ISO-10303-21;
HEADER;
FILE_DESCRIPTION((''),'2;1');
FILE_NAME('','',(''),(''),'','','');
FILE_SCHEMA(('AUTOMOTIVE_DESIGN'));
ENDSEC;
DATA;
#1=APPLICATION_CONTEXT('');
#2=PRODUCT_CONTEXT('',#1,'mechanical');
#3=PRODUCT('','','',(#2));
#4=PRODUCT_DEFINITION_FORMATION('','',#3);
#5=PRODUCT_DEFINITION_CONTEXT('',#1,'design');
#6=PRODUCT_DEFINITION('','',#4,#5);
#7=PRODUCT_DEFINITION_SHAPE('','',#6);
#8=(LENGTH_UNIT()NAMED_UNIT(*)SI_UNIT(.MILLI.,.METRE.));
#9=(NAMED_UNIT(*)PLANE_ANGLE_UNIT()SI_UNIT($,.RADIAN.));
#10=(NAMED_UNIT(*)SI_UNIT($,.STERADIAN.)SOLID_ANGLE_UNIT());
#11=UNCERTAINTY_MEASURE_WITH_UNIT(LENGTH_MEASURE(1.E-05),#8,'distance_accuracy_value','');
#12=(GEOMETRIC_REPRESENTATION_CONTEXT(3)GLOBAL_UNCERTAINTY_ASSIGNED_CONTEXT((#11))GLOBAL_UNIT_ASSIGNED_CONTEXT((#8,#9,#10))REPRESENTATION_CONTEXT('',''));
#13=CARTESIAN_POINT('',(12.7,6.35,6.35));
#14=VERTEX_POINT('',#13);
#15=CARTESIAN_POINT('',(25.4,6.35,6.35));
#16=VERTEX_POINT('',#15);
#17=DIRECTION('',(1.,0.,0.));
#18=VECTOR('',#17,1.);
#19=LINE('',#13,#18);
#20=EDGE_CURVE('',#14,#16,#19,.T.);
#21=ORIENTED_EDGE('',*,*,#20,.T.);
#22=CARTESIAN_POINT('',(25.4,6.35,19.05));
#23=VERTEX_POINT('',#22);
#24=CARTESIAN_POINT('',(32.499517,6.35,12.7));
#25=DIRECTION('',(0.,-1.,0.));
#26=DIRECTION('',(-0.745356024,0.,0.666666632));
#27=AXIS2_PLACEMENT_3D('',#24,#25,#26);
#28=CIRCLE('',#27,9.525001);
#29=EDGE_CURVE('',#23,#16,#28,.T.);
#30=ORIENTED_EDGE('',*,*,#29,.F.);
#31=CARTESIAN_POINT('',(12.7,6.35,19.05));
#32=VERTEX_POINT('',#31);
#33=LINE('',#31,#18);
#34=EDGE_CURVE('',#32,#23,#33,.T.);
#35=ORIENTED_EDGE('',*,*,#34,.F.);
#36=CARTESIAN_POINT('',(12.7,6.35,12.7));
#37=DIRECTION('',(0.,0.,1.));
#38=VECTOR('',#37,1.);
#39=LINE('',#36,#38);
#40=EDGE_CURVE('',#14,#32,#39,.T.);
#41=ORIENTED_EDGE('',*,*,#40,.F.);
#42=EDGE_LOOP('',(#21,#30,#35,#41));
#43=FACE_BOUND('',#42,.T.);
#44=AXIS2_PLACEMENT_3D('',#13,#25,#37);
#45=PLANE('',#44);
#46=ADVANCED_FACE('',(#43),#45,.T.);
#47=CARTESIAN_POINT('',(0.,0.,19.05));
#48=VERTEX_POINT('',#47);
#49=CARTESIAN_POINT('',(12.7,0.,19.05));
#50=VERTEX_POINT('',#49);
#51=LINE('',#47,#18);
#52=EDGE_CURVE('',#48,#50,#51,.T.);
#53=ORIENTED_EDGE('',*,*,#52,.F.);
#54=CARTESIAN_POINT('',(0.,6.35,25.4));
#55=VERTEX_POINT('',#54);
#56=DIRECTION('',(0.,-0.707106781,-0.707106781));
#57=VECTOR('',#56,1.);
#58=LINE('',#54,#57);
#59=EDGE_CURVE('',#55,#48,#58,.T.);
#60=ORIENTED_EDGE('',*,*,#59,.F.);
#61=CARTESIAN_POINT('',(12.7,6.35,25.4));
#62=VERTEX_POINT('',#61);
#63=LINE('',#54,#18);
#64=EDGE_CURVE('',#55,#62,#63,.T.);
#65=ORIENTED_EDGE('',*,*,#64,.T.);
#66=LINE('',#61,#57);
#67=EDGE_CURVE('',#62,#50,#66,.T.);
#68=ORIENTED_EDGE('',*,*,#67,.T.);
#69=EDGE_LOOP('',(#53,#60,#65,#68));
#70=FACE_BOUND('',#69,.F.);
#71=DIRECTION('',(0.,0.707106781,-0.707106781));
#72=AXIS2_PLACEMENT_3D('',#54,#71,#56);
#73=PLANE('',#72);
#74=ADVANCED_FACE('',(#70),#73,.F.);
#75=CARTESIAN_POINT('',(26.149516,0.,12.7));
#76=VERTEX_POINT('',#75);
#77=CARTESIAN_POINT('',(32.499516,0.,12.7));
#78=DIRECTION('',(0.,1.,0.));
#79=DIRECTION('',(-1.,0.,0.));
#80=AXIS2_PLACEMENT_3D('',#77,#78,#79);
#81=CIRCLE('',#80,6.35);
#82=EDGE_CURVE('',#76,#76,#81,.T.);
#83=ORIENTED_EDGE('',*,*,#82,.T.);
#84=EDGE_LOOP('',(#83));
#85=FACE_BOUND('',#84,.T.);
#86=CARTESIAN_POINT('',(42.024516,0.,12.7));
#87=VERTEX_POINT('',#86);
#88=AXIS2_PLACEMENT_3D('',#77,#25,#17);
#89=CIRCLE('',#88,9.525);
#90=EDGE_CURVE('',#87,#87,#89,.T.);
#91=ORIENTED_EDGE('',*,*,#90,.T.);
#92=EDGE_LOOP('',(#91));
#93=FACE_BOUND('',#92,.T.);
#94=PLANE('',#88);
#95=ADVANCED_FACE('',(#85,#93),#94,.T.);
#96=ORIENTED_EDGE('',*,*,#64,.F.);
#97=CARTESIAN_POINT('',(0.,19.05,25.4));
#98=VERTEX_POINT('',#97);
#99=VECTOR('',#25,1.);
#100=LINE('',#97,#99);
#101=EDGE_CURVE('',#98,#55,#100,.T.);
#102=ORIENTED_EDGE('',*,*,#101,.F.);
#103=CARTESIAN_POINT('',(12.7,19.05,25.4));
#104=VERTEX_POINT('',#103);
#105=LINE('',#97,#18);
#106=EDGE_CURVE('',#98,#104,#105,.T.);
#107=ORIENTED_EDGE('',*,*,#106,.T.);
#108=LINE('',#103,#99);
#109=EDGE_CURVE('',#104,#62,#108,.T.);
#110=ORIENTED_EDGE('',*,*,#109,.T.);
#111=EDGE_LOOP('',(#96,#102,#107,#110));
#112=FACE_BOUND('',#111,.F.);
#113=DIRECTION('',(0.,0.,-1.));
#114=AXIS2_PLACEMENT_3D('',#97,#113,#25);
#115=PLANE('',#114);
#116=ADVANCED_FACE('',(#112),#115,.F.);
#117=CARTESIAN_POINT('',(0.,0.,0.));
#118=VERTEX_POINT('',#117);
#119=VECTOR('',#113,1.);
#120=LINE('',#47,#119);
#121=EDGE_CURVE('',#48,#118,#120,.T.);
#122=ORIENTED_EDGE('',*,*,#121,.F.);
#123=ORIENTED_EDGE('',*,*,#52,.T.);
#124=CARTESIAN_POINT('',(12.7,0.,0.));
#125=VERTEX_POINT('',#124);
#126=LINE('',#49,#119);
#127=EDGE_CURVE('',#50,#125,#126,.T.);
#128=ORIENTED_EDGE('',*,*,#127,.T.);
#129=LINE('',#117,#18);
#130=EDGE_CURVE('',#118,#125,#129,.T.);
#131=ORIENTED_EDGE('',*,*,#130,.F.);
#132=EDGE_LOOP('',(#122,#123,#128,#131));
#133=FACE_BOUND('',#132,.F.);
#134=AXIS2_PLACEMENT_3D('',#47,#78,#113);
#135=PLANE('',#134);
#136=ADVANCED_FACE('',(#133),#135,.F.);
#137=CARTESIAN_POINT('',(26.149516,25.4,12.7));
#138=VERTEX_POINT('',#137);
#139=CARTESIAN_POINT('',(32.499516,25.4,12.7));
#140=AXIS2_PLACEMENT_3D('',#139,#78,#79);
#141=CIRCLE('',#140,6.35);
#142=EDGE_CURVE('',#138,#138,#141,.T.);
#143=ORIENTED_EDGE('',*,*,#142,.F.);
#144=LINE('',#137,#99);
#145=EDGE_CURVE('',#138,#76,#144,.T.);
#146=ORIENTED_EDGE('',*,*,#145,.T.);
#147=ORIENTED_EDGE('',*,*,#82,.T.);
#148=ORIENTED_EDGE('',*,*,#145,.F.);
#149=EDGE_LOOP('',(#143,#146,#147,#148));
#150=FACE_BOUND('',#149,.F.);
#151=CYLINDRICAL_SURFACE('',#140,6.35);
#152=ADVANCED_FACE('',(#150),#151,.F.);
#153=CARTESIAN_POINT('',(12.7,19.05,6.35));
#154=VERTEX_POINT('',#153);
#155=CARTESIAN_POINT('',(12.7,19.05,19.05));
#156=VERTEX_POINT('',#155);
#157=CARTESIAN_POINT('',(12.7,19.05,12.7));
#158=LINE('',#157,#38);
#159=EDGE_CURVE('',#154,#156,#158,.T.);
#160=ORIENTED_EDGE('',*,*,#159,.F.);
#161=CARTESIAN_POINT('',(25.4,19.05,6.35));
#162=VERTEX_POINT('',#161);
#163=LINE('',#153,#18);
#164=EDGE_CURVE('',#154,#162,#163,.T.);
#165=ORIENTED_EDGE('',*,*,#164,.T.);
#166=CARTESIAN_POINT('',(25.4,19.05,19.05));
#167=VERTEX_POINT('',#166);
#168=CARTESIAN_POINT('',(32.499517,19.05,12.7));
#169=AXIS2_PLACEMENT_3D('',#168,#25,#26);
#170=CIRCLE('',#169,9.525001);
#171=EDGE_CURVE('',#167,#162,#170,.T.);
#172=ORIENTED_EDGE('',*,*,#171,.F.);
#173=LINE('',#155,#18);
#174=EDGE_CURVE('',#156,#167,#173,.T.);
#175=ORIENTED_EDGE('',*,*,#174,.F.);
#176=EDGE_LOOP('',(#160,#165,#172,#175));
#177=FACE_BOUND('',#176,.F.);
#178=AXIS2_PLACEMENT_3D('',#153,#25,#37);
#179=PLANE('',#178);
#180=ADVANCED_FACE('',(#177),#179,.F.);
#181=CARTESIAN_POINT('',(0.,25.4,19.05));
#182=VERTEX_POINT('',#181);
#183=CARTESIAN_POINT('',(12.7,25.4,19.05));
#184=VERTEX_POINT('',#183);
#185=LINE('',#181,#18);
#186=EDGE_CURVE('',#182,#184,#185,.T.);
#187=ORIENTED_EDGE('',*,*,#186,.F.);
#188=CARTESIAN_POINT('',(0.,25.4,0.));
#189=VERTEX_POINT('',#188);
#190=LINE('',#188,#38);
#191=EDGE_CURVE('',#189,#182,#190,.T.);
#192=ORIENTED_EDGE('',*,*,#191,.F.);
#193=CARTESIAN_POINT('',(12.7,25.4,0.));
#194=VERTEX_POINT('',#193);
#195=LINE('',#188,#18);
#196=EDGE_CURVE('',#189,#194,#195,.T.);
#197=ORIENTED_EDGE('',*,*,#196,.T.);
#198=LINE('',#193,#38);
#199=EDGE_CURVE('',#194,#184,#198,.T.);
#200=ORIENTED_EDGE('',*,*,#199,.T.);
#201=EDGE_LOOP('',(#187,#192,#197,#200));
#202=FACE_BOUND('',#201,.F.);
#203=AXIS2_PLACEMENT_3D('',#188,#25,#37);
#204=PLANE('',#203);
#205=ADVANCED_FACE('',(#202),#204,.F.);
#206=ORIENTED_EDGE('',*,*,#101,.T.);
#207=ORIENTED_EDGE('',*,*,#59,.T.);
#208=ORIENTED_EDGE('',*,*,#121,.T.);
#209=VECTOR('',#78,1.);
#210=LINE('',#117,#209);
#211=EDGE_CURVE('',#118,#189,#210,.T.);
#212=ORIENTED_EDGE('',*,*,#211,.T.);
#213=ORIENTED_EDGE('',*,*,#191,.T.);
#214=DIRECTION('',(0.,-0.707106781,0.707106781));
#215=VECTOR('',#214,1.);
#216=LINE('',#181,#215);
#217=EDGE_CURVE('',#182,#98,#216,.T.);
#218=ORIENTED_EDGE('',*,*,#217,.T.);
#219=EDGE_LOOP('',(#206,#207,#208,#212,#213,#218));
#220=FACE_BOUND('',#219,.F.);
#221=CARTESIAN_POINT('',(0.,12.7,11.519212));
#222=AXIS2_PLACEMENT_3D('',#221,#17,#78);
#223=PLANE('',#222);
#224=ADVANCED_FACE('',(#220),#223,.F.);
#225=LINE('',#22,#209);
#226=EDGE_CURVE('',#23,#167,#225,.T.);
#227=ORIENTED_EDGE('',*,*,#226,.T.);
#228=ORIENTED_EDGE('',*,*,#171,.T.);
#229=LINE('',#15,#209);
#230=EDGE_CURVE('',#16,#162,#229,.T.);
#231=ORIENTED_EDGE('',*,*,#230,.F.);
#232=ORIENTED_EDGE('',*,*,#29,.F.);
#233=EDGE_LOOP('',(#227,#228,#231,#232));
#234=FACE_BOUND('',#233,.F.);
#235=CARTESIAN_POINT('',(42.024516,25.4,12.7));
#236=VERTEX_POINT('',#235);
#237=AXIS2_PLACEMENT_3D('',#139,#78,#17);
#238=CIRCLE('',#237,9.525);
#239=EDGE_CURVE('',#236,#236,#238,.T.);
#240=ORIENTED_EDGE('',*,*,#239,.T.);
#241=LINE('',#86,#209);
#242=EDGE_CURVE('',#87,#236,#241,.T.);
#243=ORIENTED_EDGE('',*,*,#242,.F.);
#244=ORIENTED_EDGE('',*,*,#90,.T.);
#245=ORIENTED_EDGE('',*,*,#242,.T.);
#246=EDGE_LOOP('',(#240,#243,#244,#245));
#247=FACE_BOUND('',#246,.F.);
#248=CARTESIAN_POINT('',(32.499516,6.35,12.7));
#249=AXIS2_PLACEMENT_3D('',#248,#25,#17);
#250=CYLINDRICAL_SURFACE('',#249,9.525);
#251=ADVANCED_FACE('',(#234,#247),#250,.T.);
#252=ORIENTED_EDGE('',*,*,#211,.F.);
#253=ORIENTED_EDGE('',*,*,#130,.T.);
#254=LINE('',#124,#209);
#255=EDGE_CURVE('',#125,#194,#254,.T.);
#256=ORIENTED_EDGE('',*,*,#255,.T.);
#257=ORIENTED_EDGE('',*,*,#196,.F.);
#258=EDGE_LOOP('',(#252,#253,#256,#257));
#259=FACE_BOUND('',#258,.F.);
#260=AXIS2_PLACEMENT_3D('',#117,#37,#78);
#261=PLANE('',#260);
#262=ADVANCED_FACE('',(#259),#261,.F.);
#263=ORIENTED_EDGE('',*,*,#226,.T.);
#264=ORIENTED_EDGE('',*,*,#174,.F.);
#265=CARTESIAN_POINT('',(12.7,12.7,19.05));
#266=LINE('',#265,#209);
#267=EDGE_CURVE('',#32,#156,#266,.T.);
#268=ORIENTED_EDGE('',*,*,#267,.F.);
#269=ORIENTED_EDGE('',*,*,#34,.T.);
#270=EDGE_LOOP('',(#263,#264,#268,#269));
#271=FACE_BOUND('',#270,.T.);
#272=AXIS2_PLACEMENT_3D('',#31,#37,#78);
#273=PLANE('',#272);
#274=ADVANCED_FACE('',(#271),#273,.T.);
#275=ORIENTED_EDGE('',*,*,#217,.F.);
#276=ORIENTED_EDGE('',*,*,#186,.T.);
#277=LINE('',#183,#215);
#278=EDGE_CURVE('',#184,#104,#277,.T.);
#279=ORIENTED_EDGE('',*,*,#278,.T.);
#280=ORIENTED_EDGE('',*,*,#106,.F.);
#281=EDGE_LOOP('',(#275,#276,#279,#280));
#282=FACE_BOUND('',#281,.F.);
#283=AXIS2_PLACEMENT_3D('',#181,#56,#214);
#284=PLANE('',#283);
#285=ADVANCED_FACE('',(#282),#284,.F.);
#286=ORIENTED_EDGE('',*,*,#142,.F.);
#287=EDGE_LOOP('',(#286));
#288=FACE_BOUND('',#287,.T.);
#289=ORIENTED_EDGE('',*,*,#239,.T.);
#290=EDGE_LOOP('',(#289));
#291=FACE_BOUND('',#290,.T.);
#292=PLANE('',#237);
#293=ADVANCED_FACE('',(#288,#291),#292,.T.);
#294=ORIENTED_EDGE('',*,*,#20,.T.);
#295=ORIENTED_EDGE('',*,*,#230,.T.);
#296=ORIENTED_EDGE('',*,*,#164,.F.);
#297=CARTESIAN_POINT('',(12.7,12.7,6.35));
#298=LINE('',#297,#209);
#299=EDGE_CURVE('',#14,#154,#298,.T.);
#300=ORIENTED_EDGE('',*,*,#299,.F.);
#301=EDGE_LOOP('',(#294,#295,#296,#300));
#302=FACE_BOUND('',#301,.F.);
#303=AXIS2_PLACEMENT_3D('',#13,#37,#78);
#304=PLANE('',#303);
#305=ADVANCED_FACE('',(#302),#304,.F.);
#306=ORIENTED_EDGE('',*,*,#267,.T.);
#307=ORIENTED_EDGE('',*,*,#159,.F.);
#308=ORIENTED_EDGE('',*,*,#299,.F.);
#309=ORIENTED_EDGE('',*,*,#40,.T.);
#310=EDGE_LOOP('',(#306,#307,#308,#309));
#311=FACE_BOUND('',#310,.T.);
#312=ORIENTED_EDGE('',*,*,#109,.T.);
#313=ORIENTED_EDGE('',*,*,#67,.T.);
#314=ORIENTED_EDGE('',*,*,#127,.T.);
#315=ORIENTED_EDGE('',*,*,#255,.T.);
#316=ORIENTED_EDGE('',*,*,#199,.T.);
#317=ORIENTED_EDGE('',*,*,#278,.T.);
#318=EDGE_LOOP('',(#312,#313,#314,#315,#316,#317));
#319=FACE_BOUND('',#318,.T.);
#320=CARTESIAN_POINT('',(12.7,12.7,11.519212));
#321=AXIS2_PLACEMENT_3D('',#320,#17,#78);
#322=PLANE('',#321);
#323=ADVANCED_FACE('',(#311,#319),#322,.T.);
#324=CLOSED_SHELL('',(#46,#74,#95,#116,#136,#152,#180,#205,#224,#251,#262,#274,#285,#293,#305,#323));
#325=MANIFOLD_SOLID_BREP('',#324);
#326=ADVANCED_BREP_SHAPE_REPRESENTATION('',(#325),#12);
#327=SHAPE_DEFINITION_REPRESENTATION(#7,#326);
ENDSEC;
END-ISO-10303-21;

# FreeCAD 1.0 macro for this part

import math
import FreeCAD as App
import Part
import Sketcher
from FreeCAD import Vector
Q = App.Units.Quantity


def add_polygon(sketch, points):
    """Adds a closed chain of lines whose ends are joined by coincident constraints."""
    first, n = sketch.GeometryCount, len(points)
    for a, b in zip(points, points[1:] + points[:1]):
        sketch.addGeometry(Part.LineSegment(App.Vector(*a, 0), App.Vector(*b, 0)), False)
    for i in range(n):
        sketch.addConstraint(Sketcher.Constraint("Coincident", first + i, 2, first + (i + 1) % n, 1))

doc = App.newDocument("Part")
body = doc.addObject("PartDesign::Body", "Body")

# Sketch on YZ plane
sketch1 = doc.addObject("Sketcher::SketchObject", "Sketch")
body.addObject(sketch1)
sketch1.AttachmentSupport = (doc.YZ_Plane, [""])
sketch1.MapMode = "FlatFace"
add_polygon(sketch1, [(0, 19.05), (0, 0), (25.4, 0), (25.4, 19.05), (19.05, 25.4), (6.35, 25.4)])  # lines 0-5
sketch1.addConstraint([
    Sketcher.Constraint("Vertical", 0),
    Sketcher.Constraint("Horizontal", 1),
    Sketcher.Constraint("Vertical", 2),
    Sketcher.Constraint("Horizontal", 4),
    Sketcher.Constraint("Coincident", 0, 2, -1, 1),
    Sketcher.Constraint("Perpendicular", 3, 5),
    Sketcher.Constraint("Horizontal", 2, 2, 5, 2),
    Sketcher.Constraint("Equal", 3, 5),
    Sketcher.Constraint("DistanceX", 1, 1, 1, 2, Q("1 in")),
    Sketcher.Constraint("DistanceX", 4, 2, 4, 1, Q("0.5 in")),
    Sketcher.Constraint("DistanceY", -1, 1, 3, 2, Q("1 in")),
])
pad1 = doc.addObject("PartDesign::Pad", "Pad")
body.addObject(pad1)
pad1.Profile = sketch1
pad1.Length = Q("0.5 in")

# Sketch on YZ plane
sketch2 = doc.addObject("Sketcher::SketchObject", "Sketch001")
body.addObject(sketch2)
sketch2.AttachmentSupport = (doc.YZ_Plane, [""])
sketch2.MapMode = "FlatFace"
sketch2.AttachmentOffset = App.Placement(Vector(0, 0, 0.5 * 25.4), App.Rotation())
add_polygon(sketch2, [(6.35, 19.05), (6.35, 6.35), (19.05, 6.35), (19.05, 19.05)])  # lines 0-3
sketch2.addConstraint([
    Sketcher.Constraint("Vertical", 0),
    Sketcher.Constraint("Horizontal", 1),
    Sketcher.Constraint("Vertical", 2),
    Sketcher.Constraint("Horizontal", 3),
    Sketcher.Constraint("Equal", 3, 0),
    Sketcher.Constraint("DistanceX", 1, 1, 1, 2, Q("0.5 in")),
    Sketcher.Constraint("DistanceX", -1, 1, 0, 2, Q("0.25 in")),
    Sketcher.Constraint("DistanceY", -1, 1, 0, 2, Q("0.25 in")),
])
pad2 = doc.addObject("PartDesign::Pad", "Pad001")
body.addObject(pad2)
pad2.Profile = sketch2
pad2.Length = Q("1 in")

# Sketch on XZ plane
sketch3 = doc.addObject("Sketcher::SketchObject", "Sketch002")
body.addObject(sketch3)
sketch3.AttachmentSupport = (doc.XZ_Plane, [""])
sketch3.MapMode = "FlatFace"
sketch3.AttachmentOffset = App.Placement(Vector(0, 0, -0.25 * 25.4), App.Rotation())
sketch3.addGeometry([
    Part.LineSegment(Vector(38.1, 6.35, 0), Vector(38.1, 19.05, 0)),
    Part.LineSegment(Vector(38.1, 19.05, 0), Vector(25.4, 19.05, 0)),
    Part.ArcOfCircle(Part.Circle(Vector(32.499517, 12.7, 0), Vector(0, 0, 1), 9.525001), math.radians(138.189688), math.radians(221.810312)),
    Part.LineSegment(Vector(25.4, 6.35, 0), Vector(38.1, 6.35, 0)),
], False)
sketch3.addConstraint([
    Sketcher.Constraint("Coincident", 0, 2, 1, 1),
    Sketcher.Constraint("Coincident", 1, 2, 2, 1),
    Sketcher.Constraint("Coincident", 2, 2, 3, 1),
    Sketcher.Constraint("Coincident", 3, 2, 0, 1),
    Sketcher.Constraint("Vertical", 0),
    Sketcher.Constraint("Horizontal", 1),
    Sketcher.Constraint("Horizontal", 3),
    Sketcher.Constraint("Vertical", 1, 2, 2, 2),
    Sketcher.Constraint("Equal", 3, 0),
    Sketcher.Constraint("DistanceX", 1, 2, 1, 1, Q("0.5 in")),
    Sketcher.Constraint("DistanceX", -1, 1, 1, 2, Q("1 in")),
    Sketcher.Constraint("Radius", 2, Q("0.375 in")),
    Sketcher.Constraint("DistanceY", -1, 1, 2, 3, Q("0.5 in")),
])
pocket1 = doc.addObject("PartDesign::Pocket", "Pocket")
body.addObject(pocket1)
pocket1.Profile = sketch3
pocket1.Length = Q("0.5 in")
body2 = doc.addObject("PartDesign::Body", "Body001")

# Sketch on XZ plane
sketch4 = doc.addObject("Sketcher::SketchObject", "Sketch003")
body2.addObject(sketch4)
sketch4.AttachmentSupport = (doc.getObject("XZ_Plane001"), [""])
sketch4.MapMode = "FlatFace"
sketch4.AttachmentOffset = App.Placement(Vector(0, 0, -0.25 * 25.4), App.Rotation())
sketch4.addGeometry(Part.Circle(Vector(32.499516, 12.7, 0), Vector(0, 0, 1), 9.525), False)
sketch4.addConstraint([
    Sketcher.Constraint("Diameter", 0, Q("0.75 in")),
    Sketcher.Constraint("DistanceY", -1, 1, 0, 3, Q("0.5 in")),
    Sketcher.Constraint("DistanceX", -1, 1, 0, 3, 32.499516),
])
pad3 = doc.addObject("PartDesign::Pad", "Pad002")
body2.addObject(pad3)
pad3.Profile = sketch4
pad3.Length = Q("0.25 in")
body.AllowCompound = True
doc.recompute()

boolean = doc.addObject("PartDesign::Boolean", "Boolean")
body.addObject(boolean)
boolean.Type = "Fuse"
boolean.addObjects([body2])

# Sketch on XZ plane
sketch5 = doc.addObject("Sketcher::SketchObject", "Sketch004")
body.addObject(sketch5)
sketch5.AttachmentSupport = (doc.XZ_Plane, [""])
sketch5.MapMode = "FlatFace"
sketch5.AttachmentOffset = App.Placement(Vector(0, 0, -0.25 * 25.4), App.Rotation())
sketch5.addGeometry(Part.Circle(Vector(32.499516, 12.7, 0), Vector(0, 0, 1), 9.525), False)
sketch5.addConstraint([
    Sketcher.Constraint("Diameter", 0, Q("0.75 in")),
    Sketcher.Constraint("DistanceY", -1, 1, 0, 3, Q("0.5 in")),
    Sketcher.Constraint("DistanceX", -1, 1, 0, 3, 32.499516),
])
pad4 = doc.addObject("PartDesign::Pad", "Pad003")
body.addObject(pad4)
pad4.Profile = sketch5
pad4.Length = Q("0.75 in")
pad4.Reversed = True

# Sketch on XZ plane
sketch6 = doc.addObject("Sketcher::SketchObject", "Sketch005")
body.addObject(sketch6)
sketch6.AttachmentSupport = (doc.XZ_Plane, [""])
sketch6.MapMode = "FlatFace"
sketch6.AttachmentOffset = App.Placement(Vector(0, 0, -1 * 25.4), App.Rotation())
sketch6.addGeometry(Part.Circle(Vector(32.499516, 12.7, 0), Vector(0, 0, 1), 6.35), False)
sketch6.addConstraint([
    Sketcher.Constraint("Diameter", 0, Q("0.5 in")),
    Sketcher.Constraint("DistanceY", -1, 1, 0, 3, Q("0.5 in")),
    Sketcher.Constraint("DistanceX", -1, 1, 0, 3, 32.499516),
])
pocket2 = doc.addObject("PartDesign::Pocket", "Pocket001")
body.addObject(pocket2)
pocket2.Profile = sketch6
pocket2.Length = Q("1 in")
pocket2.Reversed = True

doc.recompute()
